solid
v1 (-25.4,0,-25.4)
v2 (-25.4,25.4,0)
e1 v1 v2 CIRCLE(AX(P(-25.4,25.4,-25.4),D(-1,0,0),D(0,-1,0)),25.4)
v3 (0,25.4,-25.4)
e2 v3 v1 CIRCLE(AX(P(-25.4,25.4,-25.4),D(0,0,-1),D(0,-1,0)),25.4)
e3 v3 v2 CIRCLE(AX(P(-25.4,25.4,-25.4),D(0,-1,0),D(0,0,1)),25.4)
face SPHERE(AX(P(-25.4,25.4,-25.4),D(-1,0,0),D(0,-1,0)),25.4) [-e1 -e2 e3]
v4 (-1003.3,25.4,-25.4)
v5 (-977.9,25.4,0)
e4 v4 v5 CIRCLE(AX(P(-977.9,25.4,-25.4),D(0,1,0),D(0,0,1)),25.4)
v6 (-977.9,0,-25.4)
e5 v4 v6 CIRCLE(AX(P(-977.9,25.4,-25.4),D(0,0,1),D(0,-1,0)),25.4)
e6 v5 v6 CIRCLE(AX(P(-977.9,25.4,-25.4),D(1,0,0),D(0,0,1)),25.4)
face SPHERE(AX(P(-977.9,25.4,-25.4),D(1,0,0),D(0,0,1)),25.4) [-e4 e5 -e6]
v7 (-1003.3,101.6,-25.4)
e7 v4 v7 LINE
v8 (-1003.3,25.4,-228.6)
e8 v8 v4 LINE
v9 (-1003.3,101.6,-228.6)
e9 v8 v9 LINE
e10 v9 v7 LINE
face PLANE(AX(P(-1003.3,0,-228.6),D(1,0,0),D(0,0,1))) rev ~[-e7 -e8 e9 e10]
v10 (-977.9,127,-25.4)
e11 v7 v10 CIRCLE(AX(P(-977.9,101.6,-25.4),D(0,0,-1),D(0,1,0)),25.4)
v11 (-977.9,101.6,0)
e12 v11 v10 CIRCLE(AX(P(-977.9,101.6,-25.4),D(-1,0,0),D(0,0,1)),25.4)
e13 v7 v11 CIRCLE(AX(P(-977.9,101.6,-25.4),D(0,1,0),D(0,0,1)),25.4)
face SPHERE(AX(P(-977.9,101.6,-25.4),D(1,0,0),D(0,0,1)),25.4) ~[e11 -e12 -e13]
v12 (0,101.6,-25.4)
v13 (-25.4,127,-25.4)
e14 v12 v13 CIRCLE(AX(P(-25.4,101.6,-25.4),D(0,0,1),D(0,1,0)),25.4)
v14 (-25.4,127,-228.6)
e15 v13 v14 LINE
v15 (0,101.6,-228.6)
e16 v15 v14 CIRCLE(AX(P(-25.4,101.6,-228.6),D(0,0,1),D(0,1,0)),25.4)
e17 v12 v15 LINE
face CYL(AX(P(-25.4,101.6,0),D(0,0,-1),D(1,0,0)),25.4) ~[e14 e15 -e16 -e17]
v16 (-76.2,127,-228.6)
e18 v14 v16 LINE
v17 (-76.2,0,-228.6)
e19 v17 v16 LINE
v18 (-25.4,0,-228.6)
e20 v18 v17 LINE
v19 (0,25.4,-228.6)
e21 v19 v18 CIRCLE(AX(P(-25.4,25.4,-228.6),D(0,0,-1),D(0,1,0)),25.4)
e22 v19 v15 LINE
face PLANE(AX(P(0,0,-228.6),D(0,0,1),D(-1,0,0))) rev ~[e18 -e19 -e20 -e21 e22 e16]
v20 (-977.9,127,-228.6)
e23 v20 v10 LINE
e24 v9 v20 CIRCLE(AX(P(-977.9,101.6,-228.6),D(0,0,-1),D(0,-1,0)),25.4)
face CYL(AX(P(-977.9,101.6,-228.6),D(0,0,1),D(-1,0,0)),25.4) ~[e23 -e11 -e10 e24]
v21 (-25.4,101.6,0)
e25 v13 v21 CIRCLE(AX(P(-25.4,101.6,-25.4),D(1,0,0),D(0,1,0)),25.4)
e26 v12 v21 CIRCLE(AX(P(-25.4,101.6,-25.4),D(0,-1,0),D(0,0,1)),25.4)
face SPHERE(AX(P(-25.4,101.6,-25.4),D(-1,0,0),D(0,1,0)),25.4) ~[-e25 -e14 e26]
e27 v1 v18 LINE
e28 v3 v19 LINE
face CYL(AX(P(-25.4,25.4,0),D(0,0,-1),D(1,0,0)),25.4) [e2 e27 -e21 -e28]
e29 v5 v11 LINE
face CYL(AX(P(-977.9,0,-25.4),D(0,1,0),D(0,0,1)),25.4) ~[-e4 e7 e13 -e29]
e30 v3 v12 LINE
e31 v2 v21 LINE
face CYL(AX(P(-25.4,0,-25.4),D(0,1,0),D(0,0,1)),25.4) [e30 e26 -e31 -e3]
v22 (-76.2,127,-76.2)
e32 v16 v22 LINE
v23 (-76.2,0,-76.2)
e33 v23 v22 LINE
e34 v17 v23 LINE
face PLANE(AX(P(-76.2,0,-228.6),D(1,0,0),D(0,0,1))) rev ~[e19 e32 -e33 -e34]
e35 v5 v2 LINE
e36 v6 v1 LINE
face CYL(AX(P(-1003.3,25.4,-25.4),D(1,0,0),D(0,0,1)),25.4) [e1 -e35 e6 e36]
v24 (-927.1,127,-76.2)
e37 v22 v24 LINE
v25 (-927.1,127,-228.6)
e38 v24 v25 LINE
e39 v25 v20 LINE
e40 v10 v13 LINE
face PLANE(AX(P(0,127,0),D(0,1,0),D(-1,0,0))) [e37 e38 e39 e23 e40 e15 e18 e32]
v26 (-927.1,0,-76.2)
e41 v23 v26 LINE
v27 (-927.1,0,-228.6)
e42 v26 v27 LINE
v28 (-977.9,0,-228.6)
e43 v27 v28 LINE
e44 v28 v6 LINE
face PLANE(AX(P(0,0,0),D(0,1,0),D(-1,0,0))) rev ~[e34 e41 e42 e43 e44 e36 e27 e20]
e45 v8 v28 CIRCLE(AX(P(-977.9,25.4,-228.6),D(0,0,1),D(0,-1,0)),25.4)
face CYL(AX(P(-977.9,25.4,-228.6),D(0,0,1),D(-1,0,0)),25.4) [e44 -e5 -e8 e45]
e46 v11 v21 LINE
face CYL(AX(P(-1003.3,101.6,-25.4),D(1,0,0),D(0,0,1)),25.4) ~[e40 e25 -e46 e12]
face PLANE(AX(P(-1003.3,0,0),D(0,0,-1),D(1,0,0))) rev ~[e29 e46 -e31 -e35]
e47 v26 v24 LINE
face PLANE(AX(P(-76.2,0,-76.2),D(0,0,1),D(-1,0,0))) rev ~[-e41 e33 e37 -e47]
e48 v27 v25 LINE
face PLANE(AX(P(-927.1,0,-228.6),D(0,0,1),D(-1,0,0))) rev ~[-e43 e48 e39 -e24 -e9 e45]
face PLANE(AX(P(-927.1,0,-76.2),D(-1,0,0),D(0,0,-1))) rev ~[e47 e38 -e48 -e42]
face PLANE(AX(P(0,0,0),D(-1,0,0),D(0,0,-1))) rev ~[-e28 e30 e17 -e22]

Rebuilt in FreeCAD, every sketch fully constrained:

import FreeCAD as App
import Part
import Sketcher
from FreeCAD import Vector
Q = App.Units.Quantity


def edges_at(feature, points):
    """Names of the edges that pass closest to the given points."""
    edges = feature.Shape.Edges
    near = lambda p: min(range(len(edges)), key=lambda i: edges[i].distToShape(Part.Vertex(*p))[0])
    return sorted({f"Edge{near(p) + 1}" for p in points})


def add_polygon(sketch, points):
    """Adds a closed chain of lines whose ends are joined by coincident constraints."""
    first, n = sketch.GeometryCount, len(points)
    for a, b in zip(points, points[1:] + points[:1]):
        sketch.addGeometry(Part.LineSegment(App.Vector(*a, 0), App.Vector(*b, 0)), False)
    for i in range(n):
        sketch.addConstraint(Sketcher.Constraint("Coincident", first + i, 2, first + (i + 1) % n, 1))

doc = App.newDocument("Part")
body = doc.addObject("PartDesign::Body", "Body")

# Sketch on XZ plane
sketch1 = body.newObject("Sketcher::SketchObject", "Sketch")
sketch1.AttachmentSupport = (doc.getObject("XZ_Plane"), [""])
sketch1.MapMode = "FlatFace"
add_polygon(sketch1, [(-1003, 0), (0, 0), (0, -229), (-76, -229), (-76, -76), (-927, -76), (-927, -229), (-1003, -229)])  # lines 0-7
sketch1.addConstraint(Sketcher.Constraint("Horizontal", 0))
sketch1.addConstraint(Sketcher.Constraint("Vertical", 1))
sketch1.addConstraint(Sketcher.Constraint("Horizontal", 2))
sketch1.addConstraint(Sketcher.Constraint("Vertical", 3))
sketch1.addConstraint(Sketcher.Constraint("Horizontal", 4))
sketch1.addConstraint(Sketcher.Constraint("Vertical", 5))
sketch1.addConstraint(Sketcher.Constraint("Horizontal", 6))
sketch1.addConstraint(Sketcher.Constraint("Vertical", 7))
sketch1.addConstraint(Sketcher.Constraint("Coincident", 0, 2, -1, 1))
sketch1.addConstraint(Sketcher.Constraint("Horizontal", 2, 2, 5, 2))
sketch1.addConstraint(Sketcher.Constraint("Equal", 2, 6))
sketch1.addConstraint(Sketcher.Constraint("DistanceX", 2, 2, 2, 1, Q("3 in")))
sketch1.addConstraint(Sketcher.Constraint("DistanceY", 1, 2, 1, 1, Q("9 in")))
sketch1.addConstraint(Sketcher.Constraint("DistanceY", 3, 1, 3, 2, Q("6 in")))
sketch1.addConstraint(Sketcher.Constraint("DistanceX", 4, 2, 4, 1, Q("33.5 in")))
pad1 = body.newObject("PartDesign::Pad", "Pad")
pad1.Profile = sketch1
pad1.Length = Q("5 in")
pad1.Reversed = True
doc.recompute()

fillet = body.newObject("PartDesign::Fillet", "Fillet")
fillet.Base = (pad1, edges_at(pad1, [
    (-501.65, 127, 0),
    (-501.65, 0, 0),
    (0, 127, -114.3),
    (0, 0, -114.3),
    (0, 63.5, 0),
    (-1003.3, 63.5, 0),
    (-1003.3, 127, -114.3),
    (-1003.3, 0, -114.3),
]))
fillet.Radius = Q("1 in")

doc.recompute()
